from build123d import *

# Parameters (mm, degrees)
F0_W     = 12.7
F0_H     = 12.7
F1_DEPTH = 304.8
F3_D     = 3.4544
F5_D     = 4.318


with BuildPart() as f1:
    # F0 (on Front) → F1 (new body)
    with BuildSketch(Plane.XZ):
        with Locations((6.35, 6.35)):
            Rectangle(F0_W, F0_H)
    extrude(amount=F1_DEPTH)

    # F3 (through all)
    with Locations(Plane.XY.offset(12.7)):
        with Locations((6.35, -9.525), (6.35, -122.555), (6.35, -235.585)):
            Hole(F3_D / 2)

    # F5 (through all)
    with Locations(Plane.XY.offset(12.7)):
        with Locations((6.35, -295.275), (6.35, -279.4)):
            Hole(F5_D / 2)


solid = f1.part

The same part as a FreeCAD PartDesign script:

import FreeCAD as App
import Part
import Sketcher
Q = App.Units.Quantity

doc = App.newDocument("Part")
body = doc.addObject("PartDesign::Body", "Body")

sketch1 = body.newObject("Sketcher::SketchObject", "Sketch")
sketch1.AttachmentSupport = (doc.getObject("XZ_Plane"), [""])
sketch1.MapMode = "FlatFace"
sketch1.addGeometry(Part.LineSegment(App.Vector(0, 13, 0), App.Vector(0, 0, 0)), False)
sketch1.addGeometry(Part.LineSegment(App.Vector(0, 0, 0), App.Vector(13, 0, 0)), False)
sketch1.addGeometry(Part.LineSegment(App.Vector(13, 0, 0), App.Vector(13, 13, 0)), False)
sketch1.addGeometry(Part.LineSegment(App.Vector(13, 13, 0), App.Vector(0, 13, 0)), False)
sketch1.addConstraint(Sketcher.Constraint("Coincident", 0, 2, 1, 1))
sketch1.addConstraint(Sketcher.Constraint("Coincident", 1, 2, 2, 1))
sketch1.addConstraint(Sketcher.Constraint("Coincident", 2, 2, 3, 1))
sketch1.addConstraint(Sketcher.Constraint("Coincident", 3, 2, 0, 1))
sketch1.addConstraint(Sketcher.Constraint("Vertical", 0))
sketch1.addConstraint(Sketcher.Constraint("Horizontal", 1))
sketch1.addConstraint(Sketcher.Constraint("Vertical", 2))
sketch1.addConstraint(Sketcher.Constraint("Horizontal", 3))
sketch1.addConstraint(Sketcher.Constraint("Coincident", 0, 2, -1, 1))
sketch1.addConstraint(Sketcher.Constraint("Equal", 3, 0))
sketch1.addConstraint(Sketcher.Constraint("DistanceX", 1, 1, 1, 2, Q("0.5 in")))
pad1 = body.newObject("PartDesign::Pad", "Pad")
pad1.Profile = sketch1
pad1.Length = Q("12 in")

sketch2 = body.newObject("Sketcher::SketchObject", "Sketch001")
sketch2.AttachmentSupport = (doc.getObject("XY_Plane"), [""])
sketch2.MapMode = "FlatFace"
sketch2.AttachmentOffset = App.Placement(App.Vector(0, 0, 0.5 * 25.4), App.Rotation())
sketch2.addGeometry(Part.Circle(App.Vector(6.3, -9.5, 0), App.Vector(0, 0, 1), 1.7), False)
sketch2.addGeometry(Part.Circle(App.Vector(6.3, -122.6, 0), App.Vector(0, 0, 1), 1.7), False)
sketch2.addGeometry(Part.Circle(App.Vector(6.3, -235.6, 0), App.Vector(0, 0, 1), 1.7), False)
sketch2.addConstraint(Sketcher.Constraint("Equal", 0, 1))
sketch2.addConstraint(Sketcher.Constraint("Equal", 1, 2))
sketch2.addConstraint(Sketcher.Constraint("Vertical", 0, 3, 1, 3))
sketch2.addConstraint(Sketcher.Constraint("Vertical", 1, 3, 2, 3))
sketch2.addConstraint(Sketcher.Constraint("Diameter", 0, Q("0.136 in")))
sketch2.addConstraint(Sketcher.Constraint("DistanceY", 2, 3, 0, 3, Q("8.9 in")))
sketch2.addConstraint(Sketcher.Constraint("DistanceX", -1, 1, 0, 3, Q("0.25 in")))
sketch2.addConstraint(Sketcher.Constraint("DistanceY", 1, 3, 0, 3, Q("4.45 in")))
sketch2.addConstraint(Sketcher.Constraint("DistanceY", 0, 3, -1, 1, Q("0.375 in")))
doc.recompute()
hole = body.newObject("PartDesign::Hole", "Hole")
hole.Profile = sketch2
hole.ThreadType = "None"
hole.Diameter = Q("0.136 in")
hole.DepthType = "ThroughAll"

sketch3 = body.newObject("Sketcher::SketchObject", "Sketch002")
sketch3.AttachmentSupport = (doc.getObject("XY_Plane"), [""])
sketch3.MapMode = "FlatFace"
sketch3.AttachmentOffset = App.Placement(App.Vector(0, 0, 0.5 * 25.4), App.Rotation())
sketch3.addGeometry(Part.Circle(App.Vector(6.3, -295.3, 0), App.Vector(0, 0, 1), 2.2), False)
sketch3.addGeometry(Part.Circle(App.Vector(6.3, -279.4, 0), App.Vector(0, 0, 1), 2.2), False)
sketch3.addConstraint(Sketcher.Constraint("Equal", 0, 1))
sketch3.addConstraint(Sketcher.Constraint("Vertical", 0, 3, 1, 3))
sketch3.addConstraint(Sketcher.Constraint("Diameter", 0, Q("0.17 in")))
sketch3.addConstraint(Sketcher.Constraint("DistanceY", 1, 3, -1, 1, Q("11 in")))
sketch3.addConstraint(Sketcher.Constraint("DistanceX", -1, 1, 0, 3, Q("0.25 in")))
sketch3.addConstraint(Sketcher.Constraint("DistanceY", 0, 3, -1, 1, Q("11.625 in")))
doc.recompute()
hole2 = body.newObject("PartDesign::Hole", "Hole001")
hole2.Profile = sketch3
hole2.ThreadType = "None"
hole2.Diameter = Q("0.17 in")
hole2.DepthType = "ThroughAll"

doc.recompute()
